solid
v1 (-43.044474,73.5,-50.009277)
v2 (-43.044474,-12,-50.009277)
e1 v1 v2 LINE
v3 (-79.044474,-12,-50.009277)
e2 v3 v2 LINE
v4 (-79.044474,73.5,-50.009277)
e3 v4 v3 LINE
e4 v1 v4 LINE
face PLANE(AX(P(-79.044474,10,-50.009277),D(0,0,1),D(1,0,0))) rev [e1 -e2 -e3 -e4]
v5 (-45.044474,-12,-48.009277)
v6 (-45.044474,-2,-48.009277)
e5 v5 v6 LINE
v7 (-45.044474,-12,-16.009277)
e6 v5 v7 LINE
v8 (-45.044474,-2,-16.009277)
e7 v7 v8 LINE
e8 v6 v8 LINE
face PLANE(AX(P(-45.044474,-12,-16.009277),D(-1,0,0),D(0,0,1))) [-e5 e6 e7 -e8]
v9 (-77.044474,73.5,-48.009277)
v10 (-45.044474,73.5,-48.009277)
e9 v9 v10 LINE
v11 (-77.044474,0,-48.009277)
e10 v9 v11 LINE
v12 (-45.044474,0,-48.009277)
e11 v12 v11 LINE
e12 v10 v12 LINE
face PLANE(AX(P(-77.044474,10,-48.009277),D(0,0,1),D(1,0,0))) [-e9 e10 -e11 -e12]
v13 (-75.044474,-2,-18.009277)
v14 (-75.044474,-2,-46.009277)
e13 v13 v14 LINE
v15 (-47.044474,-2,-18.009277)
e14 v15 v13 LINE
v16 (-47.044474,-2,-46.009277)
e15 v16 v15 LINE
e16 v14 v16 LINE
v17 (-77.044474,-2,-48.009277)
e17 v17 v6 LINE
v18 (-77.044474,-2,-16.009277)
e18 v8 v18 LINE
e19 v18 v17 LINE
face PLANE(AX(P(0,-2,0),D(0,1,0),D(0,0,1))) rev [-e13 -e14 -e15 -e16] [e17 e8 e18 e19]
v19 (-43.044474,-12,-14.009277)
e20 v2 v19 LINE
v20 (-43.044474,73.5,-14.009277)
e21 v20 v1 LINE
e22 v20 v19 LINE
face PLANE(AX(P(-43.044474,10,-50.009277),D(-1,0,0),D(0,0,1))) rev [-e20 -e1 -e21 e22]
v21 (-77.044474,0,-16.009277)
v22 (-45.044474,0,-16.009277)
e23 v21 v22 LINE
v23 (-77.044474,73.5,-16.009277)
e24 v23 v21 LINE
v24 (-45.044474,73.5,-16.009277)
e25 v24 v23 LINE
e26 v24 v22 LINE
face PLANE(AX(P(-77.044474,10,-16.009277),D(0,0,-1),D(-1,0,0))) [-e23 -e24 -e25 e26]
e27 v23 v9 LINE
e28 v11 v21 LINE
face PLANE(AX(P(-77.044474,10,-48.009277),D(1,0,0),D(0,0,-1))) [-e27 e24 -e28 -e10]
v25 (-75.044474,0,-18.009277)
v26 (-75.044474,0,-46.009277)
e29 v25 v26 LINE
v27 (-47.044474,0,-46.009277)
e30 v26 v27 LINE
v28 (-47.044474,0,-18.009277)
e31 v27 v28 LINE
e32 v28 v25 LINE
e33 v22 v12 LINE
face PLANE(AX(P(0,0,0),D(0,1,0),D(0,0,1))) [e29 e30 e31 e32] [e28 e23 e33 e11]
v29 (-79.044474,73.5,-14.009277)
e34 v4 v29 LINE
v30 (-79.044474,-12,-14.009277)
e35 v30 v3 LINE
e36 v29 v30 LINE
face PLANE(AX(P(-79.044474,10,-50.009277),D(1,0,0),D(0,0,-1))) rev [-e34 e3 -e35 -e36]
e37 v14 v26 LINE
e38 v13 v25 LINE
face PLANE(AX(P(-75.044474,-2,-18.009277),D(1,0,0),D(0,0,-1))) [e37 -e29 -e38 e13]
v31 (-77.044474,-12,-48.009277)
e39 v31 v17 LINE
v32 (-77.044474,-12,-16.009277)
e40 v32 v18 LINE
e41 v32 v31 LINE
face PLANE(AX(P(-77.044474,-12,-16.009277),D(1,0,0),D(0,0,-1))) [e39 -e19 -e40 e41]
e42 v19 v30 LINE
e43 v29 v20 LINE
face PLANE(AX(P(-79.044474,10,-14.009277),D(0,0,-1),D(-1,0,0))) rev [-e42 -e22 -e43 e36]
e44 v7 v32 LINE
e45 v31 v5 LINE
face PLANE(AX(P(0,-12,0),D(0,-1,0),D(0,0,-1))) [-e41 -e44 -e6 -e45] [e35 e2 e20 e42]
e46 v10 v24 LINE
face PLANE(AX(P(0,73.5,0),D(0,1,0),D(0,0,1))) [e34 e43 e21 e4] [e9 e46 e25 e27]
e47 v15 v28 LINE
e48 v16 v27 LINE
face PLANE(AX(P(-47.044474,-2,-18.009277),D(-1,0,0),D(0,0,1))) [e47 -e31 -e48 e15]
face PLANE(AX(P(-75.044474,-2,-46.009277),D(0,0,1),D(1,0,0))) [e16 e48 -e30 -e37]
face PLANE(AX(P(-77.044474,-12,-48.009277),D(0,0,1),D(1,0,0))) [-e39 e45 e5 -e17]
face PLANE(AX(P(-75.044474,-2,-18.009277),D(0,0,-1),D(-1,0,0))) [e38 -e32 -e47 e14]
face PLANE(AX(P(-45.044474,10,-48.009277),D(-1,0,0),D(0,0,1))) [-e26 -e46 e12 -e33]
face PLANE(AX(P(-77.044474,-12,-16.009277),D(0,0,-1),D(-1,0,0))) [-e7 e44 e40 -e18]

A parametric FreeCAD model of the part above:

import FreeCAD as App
import Part
import Sketcher
from FreeCAD import Vector
Q = App.Units.Quantity

doc = App.newDocument("Part")
body = doc.addObject("PartDesign::Body", "Body")

# Sketch on XZ plane
sketch1 = doc.addObject("Sketcher::SketchObject", "Sketch")
body.addObject(sketch1)
sketch1.AttachmentSupport = (doc.XZ_Plane, [""])
sketch1.MapMode = "FlatFace"
sketch1.addGeometry(Part.LineSegment(Vector(-79, -50, 0), Vector(-79, -14, 0)), False)
sketch1.addGeometry(Part.LineSegment(Vector(-79, -14, 0), Vector(-43, -14, 0)), False)
sketch1.addGeometry(Part.LineSegment(Vector(-43, -14, 0), Vector(-43, -50, 0)), False)
sketch1.addGeometry(Part.LineSegment(Vector(-43, -50, 0), Vector(-79, -50, 0)), False)
sketch1.addGeometry(Part.LineSegment(Vector(-45, -16, 0), Vector(-77, -16, 0)), False)
sketch1.addGeometry(Part.LineSegment(Vector(-77, -16, 0), Vector(-77, -48, 0)), False)
sketch1.addGeometry(Part.LineSegment(Vector(-77, -48, 0), Vector(-45, -48, 0)), False)
sketch1.addGeometry(Part.LineSegment(Vector(-45, -48, 0), Vector(-45, -16, 0)), False)
sketch1.addConstraint(Sketcher.Constraint("Coincident", 0, 2, 1, 1))
sketch1.addConstraint(Sketcher.Constraint("Coincident", 1, 2, 2, 1))
sketch1.addConstraint(Sketcher.Constraint("Coincident", 2, 2, 3, 1))
sketch1.addConstraint(Sketcher.Constraint("Coincident", 3, 2, 0, 1))
sketch1.addConstraint(Sketcher.Constraint("Coincident", 4, 2, 5, 1))
sketch1.addConstraint(Sketcher.Constraint("Coincident", 5, 2, 6, 1))
sketch1.addConstraint(Sketcher.Constraint("Coincident", 6, 2, 7, 1))
sketch1.addConstraint(Sketcher.Constraint("Coincident", 7, 2, 4, 1))
sketch1.addConstraint(Sketcher.Constraint("Vertical", 0))
sketch1.addConstraint(Sketcher.Constraint("Horizontal", 1))
sketch1.addConstraint(Sketcher.Constraint("Vertical", 2))
sketch1.addConstraint(Sketcher.Constraint("Horizontal", 3))
sketch1.addConstraint(Sketcher.Constraint("Horizontal", 4))
sketch1.addConstraint(Sketcher.Constraint("Vertical", 5))
sketch1.addConstraint(Sketcher.Constraint("Horizontal", 6))
sketch1.addConstraint(Sketcher.Constraint("Vertical", 7))
sketch1.addConstraint(Sketcher.Constraint("Equal", 3, 0))
sketch1.addConstraint(Sketcher.Constraint("Equal", 6, 5))
sketch1.addConstraint(Sketcher.Constraint("DistanceX", 1, 1, 1, 2, Q("36 mm")))
sketch1.addConstraint(Sketcher.Constraint("DistanceX", 4, 2, 4, 1, Q("32 mm")))
sketch1.addConstraint(Sketcher.Constraint("DistanceX", 0, 2, 4, 2, Q("2 mm")))
sketch1.addConstraint(Sketcher.Constraint("DistanceY", 4, 2, 0, 2, Q("2 mm")))
sketch1.addConstraint(Sketcher.Constraint("DistanceX", 0, 2, -1, 1, Q("79.044474 mm")))
sketch1.addConstraint(Sketcher.Constraint("DistanceY", 0, 2, -1, 1, Q("14.009277 mm")))
pad1 = doc.addObject("PartDesign::Pad", "Pad")
body.addObject(pad1)
pad1.Profile = sketch1
pad1.Length = 10
pad1.Reversed = True

# Sketch on XZ plane
sketch2 = doc.addObject("Sketcher::SketchObject", "Sketch001")
body.addObject(sketch2)
sketch2.AttachmentSupport = (doc.XZ_Plane, [""])
sketch2.MapMode = "FlatFace"
sketch2.AttachmentOffset = App.Placement(Vector(0, 0, -10), App.Rotation())
sketch2.addGeometry(Part.LineSegment(Vector(-79, -50, 0), Vector(-79, -14, 0)), False)
sketch2.addGeometry(Part.LineSegment(Vector(-79, -14, 0), Vector(-43, -14, 0)), False)
sketch2.addGeometry(Part.LineSegment(Vector(-43, -14, 0), Vector(-43, -50, 0)), False)
sketch2.addGeometry(Part.LineSegment(Vector(-43, -50, 0), Vector(-79, -50, 0)), False)
sketch2.addGeometry(Part.LineSegment(Vector(-45, -16, 0), Vector(-77, -16, 0)), False)
sketch2.addGeometry(Part.LineSegment(Vector(-77, -16, 0), Vector(-77, -48, 0)), False)
sketch2.addGeometry(Part.LineSegment(Vector(-77, -48, 0), Vector(-45, -48, 0)), False)
sketch2.addGeometry(Part.LineSegment(Vector(-45, -48, 0), Vector(-45, -16, 0)), False)
sketch2.addConstraint(Sketcher.Constraint("Coincident", 0, 2, 1, 1))
sketch2.addConstraint(Sketcher.Constraint("Coincident", 1, 2, 2, 1))
sketch2.addConstraint(Sketcher.Constraint("Coincident", 2, 2, 3, 1))
sketch2.addConstraint(Sketcher.Constraint("Coincident", 3, 2, 0, 1))
sketch2.addConstraint(Sketcher.Constraint("Coincident", 4, 2, 5, 1))
sketch2.addConstraint(Sketcher.Constraint("Coincident", 5, 2, 6, 1))
sketch2.addConstraint(Sketcher.Constraint("Coincident", 6, 2, 7, 1))
sketch2.addConstraint(Sketcher.Constraint("Coincident", 7, 2, 4, 1))
sketch2.addConstraint(Sketcher.Constraint("Vertical", 0))
sketch2.addConstraint(Sketcher.Constraint("Horizontal", 1))
sketch2.addConstraint(Sketcher.Constraint("Vertical", 2))
sketch2.addConstraint(Sketcher.Constraint("Horizontal", 3))
sketch2.addConstraint(Sketcher.Constraint("Horizontal", 4))
sketch2.addConstraint(Sketcher.Constraint("Vertical", 5))
sketch2.addConstraint(Sketcher.Constraint("Horizontal", 6))
sketch2.addConstraint(Sketcher.Constraint("Vertical", 7))
sketch2.addConstraint(Sketcher.Constraint("Equal", 3, 0))
sketch2.addConstraint(Sketcher.Constraint("Equal", 6, 5))
sketch2.addConstraint(Sketcher.Constraint("DistanceX", 1, 1, 1, 2, Q("36 mm")))
sketch2.addConstraint(Sketcher.Constraint("DistanceX", 4, 2, 4, 1, Q("32 mm")))
sketch2.addConstraint(Sketcher.Constraint("DistanceX", 0, 2, 4, 2, Q("2 mm")))
sketch2.addConstraint(Sketcher.Constraint("DistanceY", 4, 2, 0, 2, Q("2 mm")))
sketch2.addConstraint(Sketcher.Constraint("DistanceX", 0, 2, -1, 1, Q("79.044474 mm")))
sketch2.addConstraint(Sketcher.Constraint("DistanceY", 0, 2, -1, 1, Q("14.009277 mm")))
pad2 = doc.addObject("PartDesign::Pad", "Pad001")
body.addObject(pad2)
pad2.Profile = sketch2
pad2.Length = 63.5
pad2.Reversed = True

# Sketch on XZ plane
sketch3 = doc.addObject("Sketcher::SketchObject", "Sketch002")
body.addObject(sketch3)
sketch3.AttachmentSupport = (doc.XZ_Plane, [""])
sketch3.MapMode = "FlatFace"
sketch3.addGeometry(Part.LineSegment(Vector(-79, -14, 0), Vector(-79, -50, 0)), False)
sketch3.addGeometry(Part.LineSegment(Vector(-79, -50, 0), Vector(-43, -50, 0)), False)
sketch3.addGeometry(Part.LineSegment(Vector(-43, -50, 0), Vector(-43, -14, 0)), False)
sketch3.addGeometry(Part.LineSegment(Vector(-43, -14, 0), Vector(-79, -14, 0)), False)
sketch3.addGeometry(Part.LineSegment(Vector(-47, -46, 0), Vector(-75, -46, 0)), False)
sketch3.addGeometry(Part.LineSegment(Vector(-75, -46, 0), Vector(-75, -18, 0)), False)
sketch3.addGeometry(Part.LineSegment(Vector(-75, -18, 0), Vector(-47, -18, 0)), False)
sketch3.addGeometry(Part.LineSegment(Vector(-47, -18, 0), Vector(-47, -46, 0)), False)
sketch3.addConstraint(Sketcher.Constraint("Coincident", 0, 2, 1, 1))
sketch3.addConstraint(Sketcher.Constraint("Coincident", 1, 2, 2, 1))
sketch3.addConstraint(Sketcher.Constraint("Coincident", 2, 2, 3, 1))
sketch3.addConstraint(Sketcher.Constraint("Coincident", 3, 2, 0, 1))
sketch3.addConstraint(Sketcher.Constraint("Coincident", 4, 2, 5, 1))
sketch3.addConstraint(Sketcher.Constraint("Coincident", 5, 2, 6, 1))
sketch3.addConstraint(Sketcher.Constraint("Coincident", 6, 2, 7, 1))
sketch3.addConstraint(Sketcher.Constraint("Coincident", 7, 2, 4, 1))
sketch3.addConstraint(Sketcher.Constraint("Vertical", 0))
sketch3.addConstraint(Sketcher.Constraint("Horizontal", 1))
sketch3.addConstraint(Sketcher.Constraint("Vertical", 2))
sketch3.addConstraint(Sketcher.Constraint("Horizontal", 3))
sketch3.addConstraint(Sketcher.Constraint("Horizontal", 4))
sketch3.addConstraint(Sketcher.Constraint("Vertical", 5))
sketch3.addConstraint(Sketcher.Constraint("Horizontal", 6))
sketch3.addConstraint(Sketcher.Constraint("Vertical", 7))
sketch3.addConstraint(Sketcher.Constraint("Equal", 3, 0))
sketch3.addConstraint(Sketcher.Constraint("Equal", 6, 5))
sketch3.addConstraint(Sketcher.Constraint("DistanceX", 1, 1, 1, 2, Q("36 mm")))
sketch3.addConstraint(Sketcher.Constraint("DistanceX", 4, 2, 4, 1, Q("28 mm")))
sketch3.addConstraint(Sketcher.Constraint("DistanceX", 0, 2, 4, 2, Q("4 mm")))
sketch3.addConstraint(Sketcher.Constraint("DistanceY", 0, 2, 4, 2, Q("4 mm")))
sketch3.addConstraint(Sketcher.Constraint("DistanceX", 0, 2, -1, 1, Q("79.044474 mm")))
sketch3.addConstraint(Sketcher.Constraint("DistanceY", 0, 2, -1, 1, Q("50.009277 mm")))
pad3 = doc.addObject("PartDesign::Pad", "Pad002")
body.addObject(pad3)
pad3.Profile = sketch3
pad3.Length = 2

# Sketch on XZ plane
sketch4 = doc.addObject("Sketcher::SketchObject", "Sketch003")
body.addObject(sketch4)
sketch4.AttachmentSupport = (doc.XZ_Plane, [""])
sketch4.MapMode = "FlatFace"
sketch4.AttachmentOffset = App.Placement(Vector(0, 0, 2), App.Rotation())
sketch4.addGeometry(Part.LineSegment(Vector(-79, -14, 0), Vector(-79, -50, 0)), False)
sketch4.addGeometry(Part.LineSegment(Vector(-79, -50, 0), Vector(-43, -50, 0)), False)
sketch4.addGeometry(Part.LineSegment(Vector(-43, -50, 0), Vector(-43, -14, 0)), False)
sketch4.addGeometry(Part.LineSegment(Vector(-43, -14, 0), Vector(-79, -14, 0)), False)
sketch4.addGeometry(Part.LineSegment(Vector(-45, -48, 0), Vector(-77, -48, 0)), False)
sketch4.addGeometry(Part.LineSegment(Vector(-77, -48, 0), Vector(-77, -16, 0)), False)
sketch4.addGeometry(Part.LineSegment(Vector(-77, -16, 0), Vector(-45, -16, 0)), False)
sketch4.addGeometry(Part.LineSegment(Vector(-45, -16, 0), Vector(-45, -48, 0)), False)
sketch4.addConstraint(Sketcher.Constraint("Coincident", 0, 2, 1, 1))
sketch4.addConstraint(Sketcher.Constraint("Coincident", 1, 2, 2, 1))
sketch4.addConstraint(Sketcher.Constraint("Coincident", 2, 2, 3, 1))
sketch4.addConstraint(Sketcher.Constraint("Coincident", 3, 2, 0, 1))
sketch4.addConstraint(Sketcher.Constraint("Coincident", 4, 2, 5, 1))
sketch4.addConstraint(Sketcher.Constraint("Coincident", 5, 2, 6, 1))
sketch4.addConstraint(Sketcher.Constraint("Coincident", 6, 2, 7, 1))
sketch4.addConstraint(Sketcher.Constraint("Coincident", 7, 2, 4, 1))
sketch4.addConstraint(Sketcher.Constraint("Vertical", 0))
sketch4.addConstraint(Sketcher.Constraint("Horizontal", 1))
sketch4.addConstraint(Sketcher.Constraint("Vertical", 2))
sketch4.addConstraint(Sketcher.Constraint("Horizontal", 3))
sketch4.addConstraint(Sketcher.Constraint("Horizontal", 4))
sketch4.addConstraint(Sketcher.Constraint("Vertical", 5))
sketch4.addConstraint(Sketcher.Constraint("Horizontal", 6))
sketch4.addConstraint(Sketcher.Constraint("Vertical", 7))
sketch4.addConstraint(Sketcher.Constraint("Equal", 3, 0))
sketch4.addConstraint(Sketcher.Constraint("Equal", 6, 5))
sketch4.addConstraint(Sketcher.Constraint("DistanceX", 1, 1, 1, 2, Q("36 mm")))
sketch4.addConstraint(Sketcher.Constraint("DistanceX", 4, 2, 4, 1, Q("32 mm")))
sketch4.addConstraint(Sketcher.Constraint("DistanceX", 0, 2, 4, 2, Q("2 mm")))
sketch4.addConstraint(Sketcher.Constraint("DistanceY", 0, 2, 4, 2, Q("2 mm")))
sketch4.addConstraint(Sketcher.Constraint("DistanceX", 0, 2, -1, 1, Q("79.044474 mm")))
sketch4.addConstraint(Sketcher.Constraint("DistanceY", 0, 2, -1, 1, Q("50.009277 mm")))
pad4 = doc.addObject("PartDesign::Pad", "Pad003")
body.addObject(pad4)
pad4.Profile = sketch4
pad4.Length = 10

doc.recompute()
